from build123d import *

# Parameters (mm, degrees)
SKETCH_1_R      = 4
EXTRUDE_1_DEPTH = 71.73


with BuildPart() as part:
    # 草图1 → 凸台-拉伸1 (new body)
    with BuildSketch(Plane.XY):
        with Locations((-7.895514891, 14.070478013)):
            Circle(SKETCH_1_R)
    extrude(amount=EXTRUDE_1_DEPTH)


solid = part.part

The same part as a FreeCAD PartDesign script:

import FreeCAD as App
import Part
import Sketcher

doc = App.newDocument("Part")
body = doc.addObject("PartDesign::Body", "Body")

sketch1 = doc.addObject("Sketcher::SketchObject", "Sketch")
body.addObject(sketch1)
sketch1.AttachmentSupport = (doc.XY_Plane, [""])
sketch1.MapMode = "FlatFace"
sketch1.addGeometry(Part.Circle(App.Vector(-7.9, 14.1, 0), App.Vector(0, 0, 1), 4), False)
sketch1.addConstraint([
    Sketcher.Constraint("Diameter", 0, 8.0),
    Sketcher.Constraint("DistanceY", -1, 1, 0, 3, 14.070478),
    Sketcher.Constraint("DistanceX", 0, 3, -1, 1, 7.895515),
])
pad1 = doc.addObject("PartDesign::Pad", "Pad")
body.addObject(pad1)
pad1.Profile = sketch1
pad1.Length = 71.73

doc.recompute()
